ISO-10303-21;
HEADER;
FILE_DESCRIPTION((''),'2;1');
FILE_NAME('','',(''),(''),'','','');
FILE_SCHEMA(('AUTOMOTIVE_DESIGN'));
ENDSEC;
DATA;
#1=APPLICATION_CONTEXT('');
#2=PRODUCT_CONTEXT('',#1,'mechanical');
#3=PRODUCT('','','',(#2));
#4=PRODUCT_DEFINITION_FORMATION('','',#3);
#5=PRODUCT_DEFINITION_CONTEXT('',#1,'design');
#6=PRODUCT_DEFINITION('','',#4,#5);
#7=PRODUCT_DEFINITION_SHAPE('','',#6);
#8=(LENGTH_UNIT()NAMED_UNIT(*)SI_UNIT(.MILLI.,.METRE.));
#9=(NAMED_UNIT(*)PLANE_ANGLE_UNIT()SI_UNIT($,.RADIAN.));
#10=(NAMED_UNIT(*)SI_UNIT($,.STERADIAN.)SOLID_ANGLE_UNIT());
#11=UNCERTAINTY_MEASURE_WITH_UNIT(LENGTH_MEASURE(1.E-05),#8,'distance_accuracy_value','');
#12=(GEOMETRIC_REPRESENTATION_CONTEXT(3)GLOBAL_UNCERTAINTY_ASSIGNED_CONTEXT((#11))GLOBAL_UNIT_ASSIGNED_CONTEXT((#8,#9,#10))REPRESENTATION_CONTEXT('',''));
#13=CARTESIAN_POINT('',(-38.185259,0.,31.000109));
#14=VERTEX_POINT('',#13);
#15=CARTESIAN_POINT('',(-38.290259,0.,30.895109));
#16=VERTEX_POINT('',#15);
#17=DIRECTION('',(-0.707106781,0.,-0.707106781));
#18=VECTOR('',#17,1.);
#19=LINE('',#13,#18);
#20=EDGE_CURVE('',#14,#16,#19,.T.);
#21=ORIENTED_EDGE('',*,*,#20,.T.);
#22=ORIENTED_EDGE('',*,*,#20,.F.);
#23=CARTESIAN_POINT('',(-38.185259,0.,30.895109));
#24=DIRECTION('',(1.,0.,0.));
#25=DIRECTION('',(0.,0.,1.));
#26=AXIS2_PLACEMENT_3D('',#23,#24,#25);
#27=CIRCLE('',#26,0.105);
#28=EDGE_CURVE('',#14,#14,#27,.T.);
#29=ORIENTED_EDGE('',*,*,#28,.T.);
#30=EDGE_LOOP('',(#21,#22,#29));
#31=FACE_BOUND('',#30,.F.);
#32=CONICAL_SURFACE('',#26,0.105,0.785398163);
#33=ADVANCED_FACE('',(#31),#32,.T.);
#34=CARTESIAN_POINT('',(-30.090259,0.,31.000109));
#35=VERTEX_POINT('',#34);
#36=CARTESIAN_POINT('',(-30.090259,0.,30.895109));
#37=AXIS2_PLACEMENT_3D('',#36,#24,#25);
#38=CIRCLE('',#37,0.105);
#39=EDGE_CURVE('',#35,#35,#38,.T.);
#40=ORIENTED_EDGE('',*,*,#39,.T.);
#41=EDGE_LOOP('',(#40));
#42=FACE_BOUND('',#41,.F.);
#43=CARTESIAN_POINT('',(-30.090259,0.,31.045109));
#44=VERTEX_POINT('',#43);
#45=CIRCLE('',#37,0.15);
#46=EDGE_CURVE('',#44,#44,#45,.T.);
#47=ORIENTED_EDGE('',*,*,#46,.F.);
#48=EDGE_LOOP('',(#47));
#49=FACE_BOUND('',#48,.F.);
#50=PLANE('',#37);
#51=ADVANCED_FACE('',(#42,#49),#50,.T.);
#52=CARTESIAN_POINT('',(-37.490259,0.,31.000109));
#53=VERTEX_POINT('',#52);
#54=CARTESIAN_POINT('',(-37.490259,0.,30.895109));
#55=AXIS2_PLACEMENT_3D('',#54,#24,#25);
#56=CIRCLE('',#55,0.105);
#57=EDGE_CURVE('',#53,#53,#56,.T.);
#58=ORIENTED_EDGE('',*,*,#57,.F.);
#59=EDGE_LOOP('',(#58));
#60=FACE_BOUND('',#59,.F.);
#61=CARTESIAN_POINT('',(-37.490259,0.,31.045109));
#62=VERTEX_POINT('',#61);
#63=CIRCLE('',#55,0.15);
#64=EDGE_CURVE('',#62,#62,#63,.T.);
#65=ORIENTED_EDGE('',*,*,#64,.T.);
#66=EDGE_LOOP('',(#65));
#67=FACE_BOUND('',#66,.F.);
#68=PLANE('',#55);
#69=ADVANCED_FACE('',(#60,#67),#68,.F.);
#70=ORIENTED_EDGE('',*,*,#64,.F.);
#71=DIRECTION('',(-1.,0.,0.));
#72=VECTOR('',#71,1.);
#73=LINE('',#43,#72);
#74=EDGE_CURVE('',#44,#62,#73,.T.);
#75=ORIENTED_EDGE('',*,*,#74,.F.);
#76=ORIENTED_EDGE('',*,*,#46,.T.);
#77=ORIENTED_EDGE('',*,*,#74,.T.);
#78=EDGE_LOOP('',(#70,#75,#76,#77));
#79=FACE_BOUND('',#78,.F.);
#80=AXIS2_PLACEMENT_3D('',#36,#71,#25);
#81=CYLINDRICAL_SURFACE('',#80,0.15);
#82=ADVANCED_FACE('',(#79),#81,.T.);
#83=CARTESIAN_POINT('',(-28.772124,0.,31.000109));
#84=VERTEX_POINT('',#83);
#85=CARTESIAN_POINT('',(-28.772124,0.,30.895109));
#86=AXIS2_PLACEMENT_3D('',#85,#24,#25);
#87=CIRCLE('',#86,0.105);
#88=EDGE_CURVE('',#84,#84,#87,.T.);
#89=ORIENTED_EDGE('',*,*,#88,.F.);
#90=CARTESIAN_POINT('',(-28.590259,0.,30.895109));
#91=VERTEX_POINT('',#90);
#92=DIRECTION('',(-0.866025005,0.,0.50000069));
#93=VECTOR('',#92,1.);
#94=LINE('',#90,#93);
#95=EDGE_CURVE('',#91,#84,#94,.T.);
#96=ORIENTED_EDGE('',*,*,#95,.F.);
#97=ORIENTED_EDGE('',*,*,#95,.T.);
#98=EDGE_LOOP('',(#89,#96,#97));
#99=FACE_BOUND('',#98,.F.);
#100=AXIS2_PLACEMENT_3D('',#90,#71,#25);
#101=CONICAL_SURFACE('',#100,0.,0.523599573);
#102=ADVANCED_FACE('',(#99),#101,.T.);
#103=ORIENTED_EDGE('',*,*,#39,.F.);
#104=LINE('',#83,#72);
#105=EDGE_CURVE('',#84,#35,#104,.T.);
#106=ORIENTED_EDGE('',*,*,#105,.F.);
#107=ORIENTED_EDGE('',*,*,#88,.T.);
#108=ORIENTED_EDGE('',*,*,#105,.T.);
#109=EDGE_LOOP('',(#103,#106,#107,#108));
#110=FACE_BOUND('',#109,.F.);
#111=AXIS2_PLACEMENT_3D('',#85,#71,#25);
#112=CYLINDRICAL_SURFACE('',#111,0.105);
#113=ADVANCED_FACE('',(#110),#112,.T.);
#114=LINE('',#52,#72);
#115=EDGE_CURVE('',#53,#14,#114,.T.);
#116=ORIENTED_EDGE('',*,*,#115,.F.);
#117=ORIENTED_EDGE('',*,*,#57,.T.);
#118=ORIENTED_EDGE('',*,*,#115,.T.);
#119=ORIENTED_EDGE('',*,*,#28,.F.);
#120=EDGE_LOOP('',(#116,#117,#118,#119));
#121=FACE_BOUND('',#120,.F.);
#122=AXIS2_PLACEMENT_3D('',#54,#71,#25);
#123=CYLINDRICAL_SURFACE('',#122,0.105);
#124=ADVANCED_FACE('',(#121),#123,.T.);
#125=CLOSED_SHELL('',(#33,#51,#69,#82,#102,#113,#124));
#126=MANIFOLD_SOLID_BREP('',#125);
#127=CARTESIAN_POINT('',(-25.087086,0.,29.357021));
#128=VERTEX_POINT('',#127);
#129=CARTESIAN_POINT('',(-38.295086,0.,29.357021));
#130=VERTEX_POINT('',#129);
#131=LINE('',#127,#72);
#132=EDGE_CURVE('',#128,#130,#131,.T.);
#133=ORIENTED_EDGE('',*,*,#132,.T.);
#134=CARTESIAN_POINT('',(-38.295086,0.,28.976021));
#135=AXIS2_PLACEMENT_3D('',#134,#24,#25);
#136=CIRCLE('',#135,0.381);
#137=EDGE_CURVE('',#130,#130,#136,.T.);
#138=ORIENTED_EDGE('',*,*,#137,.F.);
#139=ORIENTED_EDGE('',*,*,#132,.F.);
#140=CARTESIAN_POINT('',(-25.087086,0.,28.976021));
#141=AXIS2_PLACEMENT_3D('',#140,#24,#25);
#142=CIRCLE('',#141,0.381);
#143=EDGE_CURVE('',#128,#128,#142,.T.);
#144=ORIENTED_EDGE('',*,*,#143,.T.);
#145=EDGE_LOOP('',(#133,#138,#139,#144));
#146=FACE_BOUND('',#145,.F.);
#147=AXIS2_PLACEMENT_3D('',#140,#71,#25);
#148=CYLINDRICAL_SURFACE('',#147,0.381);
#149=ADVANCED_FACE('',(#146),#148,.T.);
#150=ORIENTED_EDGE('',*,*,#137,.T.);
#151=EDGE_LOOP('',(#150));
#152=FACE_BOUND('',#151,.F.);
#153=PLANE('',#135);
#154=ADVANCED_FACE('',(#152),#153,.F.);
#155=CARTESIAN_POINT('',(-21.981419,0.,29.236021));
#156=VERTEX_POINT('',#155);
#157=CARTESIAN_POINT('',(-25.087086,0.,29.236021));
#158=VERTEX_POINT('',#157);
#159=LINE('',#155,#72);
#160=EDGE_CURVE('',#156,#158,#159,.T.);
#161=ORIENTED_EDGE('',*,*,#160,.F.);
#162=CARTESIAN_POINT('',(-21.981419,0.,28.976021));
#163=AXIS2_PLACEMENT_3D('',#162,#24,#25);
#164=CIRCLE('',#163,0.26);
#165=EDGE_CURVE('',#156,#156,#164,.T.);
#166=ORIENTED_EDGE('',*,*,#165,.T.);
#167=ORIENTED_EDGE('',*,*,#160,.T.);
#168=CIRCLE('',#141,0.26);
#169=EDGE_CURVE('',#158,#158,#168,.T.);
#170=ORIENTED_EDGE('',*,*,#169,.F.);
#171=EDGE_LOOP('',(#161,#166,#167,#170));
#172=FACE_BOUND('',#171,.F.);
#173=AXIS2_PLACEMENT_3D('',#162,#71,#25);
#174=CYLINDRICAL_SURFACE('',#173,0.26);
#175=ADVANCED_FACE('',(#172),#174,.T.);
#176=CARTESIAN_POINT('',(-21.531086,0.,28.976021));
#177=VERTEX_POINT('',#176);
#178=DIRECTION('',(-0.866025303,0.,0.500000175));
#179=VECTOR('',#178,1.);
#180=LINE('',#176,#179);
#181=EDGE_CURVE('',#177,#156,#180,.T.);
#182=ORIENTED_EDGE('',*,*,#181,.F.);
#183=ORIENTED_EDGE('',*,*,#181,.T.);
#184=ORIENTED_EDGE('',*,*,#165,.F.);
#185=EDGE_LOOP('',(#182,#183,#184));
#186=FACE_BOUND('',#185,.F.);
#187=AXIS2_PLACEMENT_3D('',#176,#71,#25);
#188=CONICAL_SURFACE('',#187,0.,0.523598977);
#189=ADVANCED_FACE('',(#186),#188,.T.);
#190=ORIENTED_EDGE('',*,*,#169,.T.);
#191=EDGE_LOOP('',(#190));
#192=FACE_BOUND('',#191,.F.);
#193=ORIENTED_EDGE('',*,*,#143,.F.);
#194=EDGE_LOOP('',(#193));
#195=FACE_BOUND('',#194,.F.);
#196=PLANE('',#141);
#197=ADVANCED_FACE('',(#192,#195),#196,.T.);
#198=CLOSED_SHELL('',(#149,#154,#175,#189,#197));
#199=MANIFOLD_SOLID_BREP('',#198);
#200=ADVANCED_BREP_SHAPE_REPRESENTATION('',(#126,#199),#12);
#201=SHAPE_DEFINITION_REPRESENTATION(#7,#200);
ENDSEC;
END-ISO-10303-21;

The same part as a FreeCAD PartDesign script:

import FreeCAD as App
import Part
import Sketcher

V = App.Vector
Q = App.Units.Quantity


def add_polygon(sketch, points):
    """Adds a closed chain of lines whose ends are joined by coincident constraints."""
    first, n = sketch.GeometryCount, len(points)
    for a, b in zip(points, points[1:] + points[:1]):
        sketch.addGeometry(Part.LineSegment(App.Vector(*a, 0), App.Vector(*b, 0)), False)
    for i in range(n):
        sketch.addConstraint(Sketcher.Constraint("Coincident", first + i, 2, first + (i + 1) % n, 1))

doc = App.newDocument("Part")
body = doc.addObject("PartDesign::Body", "Body")

# Sketch on XZ plane
sketch1 = body.newObject("Sketcher::SketchObject", "Sketch")
sketch1.AttachmentSupport = (doc.getObject("XZ_Plane"), [""])
sketch1.MapMode = "FlatFace"
add_polygon(sketch1, [(-37.490259, 31.000109), (-38.185259, 31.000109), (-38.290259, 30.895109), (-28.590259, 30.895109), (-28.772124, 31.000109), (-30.090259, 31.000109), (-30.090259, 31.045109), (-37.490259, 31.045109)])  # lines 0-7
sketch1.addGeometry(Part.LineSegment(V(-38.290259, 30.895109, 0), V(-28.590259, 30.895109, 0)), True)  # axis
sketch1.addConstraint([
    Sketcher.Constraint("Horizontal", 0),
    Sketcher.Constraint("Horizontal", 2),
    Sketcher.Constraint("Horizontal", 4),
    Sketcher.Constraint("Vertical", 5),
    Sketcher.Constraint("Horizontal", 6),
    Sketcher.Constraint("Vertical", 7),
    Sketcher.Constraint("Horizontal", 8),
    Sketcher.Constraint("Coincident", 8, 1, 1, 2),
    Sketcher.Constraint("Horizontal", 0, 2, 3, 2),
    Sketcher.Constraint("Equal", 2, 8),
    Sketcher.Constraint("Angle", 1, Q("-135 deg")),
    Sketcher.Constraint("DistanceX", 0, 2, 0, 1, Q("0.695 mm")),
    Sketcher.Constraint("DistanceX", 2, 1, 2, 2, Q("9.7 mm")),
    Sketcher.Constraint("DistanceX", 6, 2, 6, 1, Q("7.4 mm")),
    Sketcher.Constraint("DistanceY", 5, 1, 5, 2, Q("0.045 mm")),
    Sketcher.Constraint("Distance", 3, Q("0.21 mm")),
    Sketcher.Constraint("DistanceX", 1, 2, 0, 2, Q("0.105 mm")),
    Sketcher.Constraint("DistanceX", 0, 2, -1, 1, Q("38.185259 mm")),
    Sketcher.Constraint("DistanceY", -1, 1, 0, 2, Q("31.000109 mm")),
])
revolution = body.newObject("PartDesign::Revolution", "Revolution")
revolution.Profile = sketch1
revolution.ReferenceAxis = (sketch1, ["Axis0"])
revolution.Angle = 360
body2 = doc.addObject("PartDesign::Body", "Body001")

# Sketch on XZ plane
sketch2 = body2.newObject("Sketcher::SketchObject", "Sketch001")
sketch2.AttachmentSupport = (doc.getObject("XZ_Plane001"), [""])
sketch2.MapMode = "FlatFace"
add_polygon(sketch2, [(-25.087086, 29.357021), (-38.295086, 29.357021), (-38.295086, 28.976021), (-21.531086, 28.976021), (-21.981419, 29.236021), (-25.087086, 29.236021)])  # lines 0-5
sketch2.addGeometry(Part.LineSegment(V(-38.295086, 28.976021, 0), V(-21.531086, 28.976021, 0)), True)  # axis
sketch2.addConstraint([
    Sketcher.Constraint("Horizontal", 0),
    Sketcher.Constraint("Vertical", 1),
    Sketcher.Constraint("Horizontal", 2),
    Sketcher.Constraint("Horizontal", 4),
    Sketcher.Constraint("Vertical", 5),
    Sketcher.Constraint("Horizontal", 6),
    Sketcher.Constraint("Coincident", 6, 1, 1, 2),
    Sketcher.Constraint("Equal", 2, 6),
    Sketcher.Constraint("Angle", 3, Q("149.999988 deg")),
    Sketcher.Constraint("DistanceX", 0, 2, 0, 1, Q("0.52 in")),
    Sketcher.Constraint("DistanceX", 2, 1, 2, 2, Q("0.66 in")),
    Sketcher.Constraint("DistanceY", 1, 2, 1, 1, Q("0.015 in")),
    Sketcher.Constraint("DistanceY", 5, 1, 5, 2, Q("0.121 mm")),
    Sketcher.Constraint("DistanceY", -1, 1, 0, 2, Q("29.357021 mm")),
    Sketcher.Constraint("DistanceX", 3, 2, -1, 1, Q("21.981419 mm")),
])
revolution2 = body2.newObject("PartDesign::Revolution", "Revolution001")
revolution2.Profile = sketch2
revolution2.ReferenceAxis = (sketch2, ["Axis0"])
revolution2.Angle = 360

doc.recompute()
